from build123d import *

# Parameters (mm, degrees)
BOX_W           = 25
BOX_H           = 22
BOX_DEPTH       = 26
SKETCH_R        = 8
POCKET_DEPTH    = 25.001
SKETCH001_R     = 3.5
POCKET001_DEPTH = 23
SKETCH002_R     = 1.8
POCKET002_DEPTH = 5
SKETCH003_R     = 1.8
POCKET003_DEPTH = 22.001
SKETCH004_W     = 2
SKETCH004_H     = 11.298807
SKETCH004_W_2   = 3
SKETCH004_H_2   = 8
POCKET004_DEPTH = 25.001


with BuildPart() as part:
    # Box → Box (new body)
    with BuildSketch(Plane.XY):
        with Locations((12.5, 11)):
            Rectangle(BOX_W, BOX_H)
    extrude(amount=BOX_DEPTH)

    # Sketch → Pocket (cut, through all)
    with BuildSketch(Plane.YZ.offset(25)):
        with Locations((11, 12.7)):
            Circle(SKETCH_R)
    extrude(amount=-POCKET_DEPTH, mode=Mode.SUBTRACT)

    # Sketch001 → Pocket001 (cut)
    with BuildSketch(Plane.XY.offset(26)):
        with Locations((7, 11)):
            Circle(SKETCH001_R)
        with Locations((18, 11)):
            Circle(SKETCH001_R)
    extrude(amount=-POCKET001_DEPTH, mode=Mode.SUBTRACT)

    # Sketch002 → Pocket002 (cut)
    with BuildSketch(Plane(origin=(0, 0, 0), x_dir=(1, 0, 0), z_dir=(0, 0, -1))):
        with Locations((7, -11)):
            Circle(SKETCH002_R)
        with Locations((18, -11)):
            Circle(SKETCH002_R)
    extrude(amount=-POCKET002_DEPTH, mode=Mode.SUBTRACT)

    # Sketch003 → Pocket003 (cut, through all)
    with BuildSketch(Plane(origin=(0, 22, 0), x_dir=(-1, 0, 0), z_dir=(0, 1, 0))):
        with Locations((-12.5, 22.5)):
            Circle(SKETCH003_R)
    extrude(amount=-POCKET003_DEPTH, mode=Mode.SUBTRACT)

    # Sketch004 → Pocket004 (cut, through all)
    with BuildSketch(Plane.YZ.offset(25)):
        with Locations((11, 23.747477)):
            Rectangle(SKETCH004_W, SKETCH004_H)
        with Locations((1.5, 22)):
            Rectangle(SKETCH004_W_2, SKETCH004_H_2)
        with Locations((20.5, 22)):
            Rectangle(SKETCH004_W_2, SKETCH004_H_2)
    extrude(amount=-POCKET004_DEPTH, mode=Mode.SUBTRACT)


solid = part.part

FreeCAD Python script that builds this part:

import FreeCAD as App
import Part
import Sketcher
from FreeCAD import Vector

doc = App.newDocument("Part")
body = doc.addObject("PartDesign::Body", "Body")

# Sketch on XY plane
sketch1 = doc.addObject("Sketcher::SketchObject", "Sketch")
body.addObject(sketch1)
sketch1.AttachmentSupport = (doc.XY_Plane, [""])
sketch1.MapMode = "FlatFace"
sketch1.addGeometry([
    Part.LineSegment(Vector(0, 22, 0), Vector(0, 0, 0)),
    Part.LineSegment(Vector(0, 0, 0), Vector(25, 0, 0)),
    Part.LineSegment(Vector(25, 0, 0), Vector(25, 22, 0)),
    Part.LineSegment(Vector(25, 22, 0), Vector(0, 22, 0)),
], False)
sketch1.addConstraint([
    Sketcher.Constraint("Coincident", 0, 2, 1, 1),
    Sketcher.Constraint("Coincident", 1, 2, 2, 1),
    Sketcher.Constraint("Coincident", 2, 2, 3, 1),
    Sketcher.Constraint("Coincident", 3, 2, 0, 1),
    Sketcher.Constraint("Vertical", 0),
    Sketcher.Constraint("Horizontal", 1),
    Sketcher.Constraint("Vertical", 2),
    Sketcher.Constraint("Horizontal", 3),
    Sketcher.Constraint("Coincident", 0, 2, -1, 1),
    Sketcher.Constraint("DistanceX", 1, 1, 1, 2, 25.0),
    Sketcher.Constraint("DistanceY", 0, 2, 0, 1, 22.0),
])
pad1 = doc.addObject("PartDesign::Pad", "Pad")
body.addObject(pad1)
pad1.Profile = sketch1
pad1.Length = 26

# Sketch on YZ plane
sketch2 = doc.addObject("Sketcher::SketchObject", "Sketch001")
body.addObject(sketch2)
sketch2.AttachmentSupport = (doc.YZ_Plane, [""])
sketch2.MapMode = "FlatFace"
sketch2.AttachmentOffset = App.Placement(Vector(0, 0, 25), App.Rotation())
sketch2.addGeometry(Part.Circle(Vector(11, 13, 0), Vector(0, 0, 1), 8), False)
sketch2.addConstraint([
    Sketcher.Constraint("Diameter", 0, 16.0),
    Sketcher.Constraint("DistanceX", -1, 1, 0, 3, 11.0),
    Sketcher.Constraint("DistanceY", -1, 1, 0, 3, 12.7),
])
pocket1 = doc.addObject("PartDesign::Pocket", "Pocket")
body.addObject(pocket1)
pocket1.Profile = sketch2
pocket1.Type = "ThroughAll"

# Sketch on XY plane
sketch3 = doc.addObject("Sketcher::SketchObject", "Sketch002")
body.addObject(sketch3)
sketch3.AttachmentSupport = (doc.XY_Plane, [""])
sketch3.MapMode = "FlatFace"
sketch3.AttachmentOffset = App.Placement(Vector(0, 0, 26), App.Rotation())
sketch3.addGeometry([
    Part.Circle(Vector(7, 11, 0), Vector(0, 0, 1), 3.5),
    Part.Circle(Vector(18, 11, 0), Vector(0, 0, 1), 3.5),
], False)
sketch3.addConstraint([
    Sketcher.Constraint("Equal", 0, 1),
    Sketcher.Constraint("Horizontal", 0, 3, 1, 3),
    Sketcher.Constraint("Diameter", 0, 7.0),
    Sketcher.Constraint("DistanceX", -1, 1, 0, 3, 7.0),
    Sketcher.Constraint("DistanceY", -1, 1, 0, 3, 11.0),
    Sketcher.Constraint("DistanceX", -1, 1, 1, 3, 18.0),
])
pocket2 = doc.addObject("PartDesign::Pocket", "Pocket001")
body.addObject(pocket2)
pocket2.Profile = sketch3
pocket2.Length = 23

# Sketch on XY plane
sketch4 = doc.addObject("Sketcher::SketchObject", "Sketch003")
body.addObject(sketch4)
sketch4.AttachmentSupport = (doc.XY_Plane, [""])
sketch4.MapMode = "FlatFace"
sketch4.addGeometry([
    Part.Circle(Vector(7, 11, 0), Vector(0, 0, 1), 1.8),
    Part.Circle(Vector(18, 11, 0), Vector(0, 0, 1), 1.8),
], False)
sketch4.addConstraint([
    Sketcher.Constraint("Equal", 0, 1),
    Sketcher.Constraint("Horizontal", 0, 3, 1, 3),
    Sketcher.Constraint("Diameter", 0, 3.6),
    Sketcher.Constraint("DistanceX", -1, 1, 0, 3, 7.0),
    Sketcher.Constraint("DistanceY", -1, 1, 0, 3, 11.0),
    Sketcher.Constraint("DistanceX", -1, 1, 1, 3, 18.0),
])
pocket3 = doc.addObject("PartDesign::Pocket", "Pocket002")
body.addObject(pocket3)
pocket3.Profile = sketch4
pocket3.Length = 5
pocket3.Reversed = True

# Sketch on XZ plane
sketch5 = doc.addObject("Sketcher::SketchObject", "Sketch004")
body.addObject(sketch5)
sketch5.AttachmentSupport = (doc.XZ_Plane, [""])
sketch5.MapMode = "FlatFace"
sketch5.AttachmentOffset = App.Placement(Vector(0, 0, -22), App.Rotation())
sketch5.addGeometry(Part.Circle(Vector(12.5, 22.5, 0), Vector(0, 0, 1), 1.8), False)
sketch5.addConstraint([
    Sketcher.Constraint("Diameter", 0, 3.6),
    Sketcher.Constraint("DistanceX", -1, 1, 0, 3, 12.5),
    Sketcher.Constraint("DistanceY", -1, 1, 0, 3, 22.5),
])
pocket4 = doc.addObject("PartDesign::Pocket", "Pocket003")
body.addObject(pocket4)
pocket4.Profile = sketch5
pocket4.Type = "ThroughAll"
pocket4.Reversed = True

# Sketch on YZ plane
sketch6 = doc.addObject("Sketcher::SketchObject", "Sketch005")
body.addObject(sketch6)
sketch6.AttachmentSupport = (doc.YZ_Plane, [""])
sketch6.MapMode = "FlatFace"
sketch6.AttachmentOffset = App.Placement(Vector(0, 0, 25), App.Rotation())
sketch6.addGeometry([
    Part.LineSegment(Vector(10, 29.4, 0), Vector(10, 18.1, 0)),  # 0
    Part.LineSegment(Vector(10, 18.1, 0), Vector(12, 18.1, 0)),  # 1
    Part.LineSegment(Vector(12, 18.1, 0), Vector(12, 29.4, 0)),  # 2
    Part.LineSegment(Vector(12, 29.4, 0), Vector(10, 29.4, 0)),  # 3
    Part.LineSegment(Vector(0, 26, 0), Vector(0, 18, 0)),  # 4
    Part.LineSegment(Vector(0, 18, 0), Vector(3, 18, 0)),  # 5
    Part.LineSegment(Vector(3, 18, 0), Vector(3, 26, 0)),  # 6
    Part.LineSegment(Vector(3, 26, 0), Vector(0, 26, 0)),  # 7
    Part.LineSegment(Vector(19, 26, 0), Vector(19, 18, 0)),  # 8
    Part.LineSegment(Vector(19, 18, 0), Vector(22, 18, 0)),  # 9
    Part.LineSegment(Vector(22, 18, 0), Vector(22, 26, 0)),  # 10
    Part.LineSegment(Vector(22, 26, 0), Vector(19, 26, 0)),  # 11
], False)
sketch6.addConstraint([
    Sketcher.Constraint("Coincident", 0, 2, 1, 1),
    Sketcher.Constraint("Coincident", 1, 2, 2, 1),
    Sketcher.Constraint("Coincident", 2, 2, 3, 1),
    Sketcher.Constraint("Coincident", 3, 2, 0, 1),
    Sketcher.Constraint("Coincident", 4, 2, 5, 1),
    Sketcher.Constraint("Coincident", 5, 2, 6, 1),
    Sketcher.Constraint("Coincident", 6, 2, 7, 1),
    Sketcher.Constraint("Coincident", 7, 2, 4, 1),
    Sketcher.Constraint("Coincident", 8, 2, 9, 1),
    Sketcher.Constraint("Coincident", 9, 2, 10, 1),
    Sketcher.Constraint("Coincident", 10, 2, 11, 1),
    Sketcher.Constraint("Coincident", 11, 2, 8, 1),
    Sketcher.Constraint("Vertical", 0),
    Sketcher.Constraint("Horizontal", 1),
    Sketcher.Constraint("Vertical", 2),
    Sketcher.Constraint("Horizontal", 3),
    Sketcher.Constraint("Vertical", 4),
    Sketcher.Constraint("Horizontal", 5),
    Sketcher.Constraint("Vertical", 6),
    Sketcher.Constraint("Horizontal", 7),
    Sketcher.Constraint("Vertical", 8),
    Sketcher.Constraint("Horizontal", 9),
    Sketcher.Constraint("Vertical", 10),
    Sketcher.Constraint("Horizontal", 11),
    Sketcher.Constraint("PointOnObject", 4, 2, -2),
    Sketcher.Constraint("Horizontal", 5, 2, 8, 2),
    Sketcher.Constraint("Horizontal", 7, 2, 10, 2),
    Sketcher.Constraint("Equal", 7, 9),
    Sketcher.Constraint("DistanceX", 1, 1, 1, 2, 2.0),
    Sketcher.Constraint("DistanceX", 5, 1, 5, 2, 3.0),
    Sketcher.Constraint("DistanceY", 4, 2, 4, 1, 8.0),
    Sketcher.Constraint("DistanceX", -1, 1, 0, 2, 10.0),
    Sketcher.Constraint("DistanceY", -1, 1, 4, 2, 18.0),
    Sketcher.Constraint("DistanceX", -1, 1, 8, 2, 19.0),
    Sketcher.Constraint("DistanceY", 0, 2, 0, 1, 11.298807),
    Sketcher.Constraint("DistanceY", -1, 1, 2, 2, 29.396881),
])
pocket5 = doc.addObject("PartDesign::Pocket", "Pocket004")
body.addObject(pocket5)
pocket5.Profile = sketch6
pocket5.Type = "ThroughAll"

doc.recompute()
